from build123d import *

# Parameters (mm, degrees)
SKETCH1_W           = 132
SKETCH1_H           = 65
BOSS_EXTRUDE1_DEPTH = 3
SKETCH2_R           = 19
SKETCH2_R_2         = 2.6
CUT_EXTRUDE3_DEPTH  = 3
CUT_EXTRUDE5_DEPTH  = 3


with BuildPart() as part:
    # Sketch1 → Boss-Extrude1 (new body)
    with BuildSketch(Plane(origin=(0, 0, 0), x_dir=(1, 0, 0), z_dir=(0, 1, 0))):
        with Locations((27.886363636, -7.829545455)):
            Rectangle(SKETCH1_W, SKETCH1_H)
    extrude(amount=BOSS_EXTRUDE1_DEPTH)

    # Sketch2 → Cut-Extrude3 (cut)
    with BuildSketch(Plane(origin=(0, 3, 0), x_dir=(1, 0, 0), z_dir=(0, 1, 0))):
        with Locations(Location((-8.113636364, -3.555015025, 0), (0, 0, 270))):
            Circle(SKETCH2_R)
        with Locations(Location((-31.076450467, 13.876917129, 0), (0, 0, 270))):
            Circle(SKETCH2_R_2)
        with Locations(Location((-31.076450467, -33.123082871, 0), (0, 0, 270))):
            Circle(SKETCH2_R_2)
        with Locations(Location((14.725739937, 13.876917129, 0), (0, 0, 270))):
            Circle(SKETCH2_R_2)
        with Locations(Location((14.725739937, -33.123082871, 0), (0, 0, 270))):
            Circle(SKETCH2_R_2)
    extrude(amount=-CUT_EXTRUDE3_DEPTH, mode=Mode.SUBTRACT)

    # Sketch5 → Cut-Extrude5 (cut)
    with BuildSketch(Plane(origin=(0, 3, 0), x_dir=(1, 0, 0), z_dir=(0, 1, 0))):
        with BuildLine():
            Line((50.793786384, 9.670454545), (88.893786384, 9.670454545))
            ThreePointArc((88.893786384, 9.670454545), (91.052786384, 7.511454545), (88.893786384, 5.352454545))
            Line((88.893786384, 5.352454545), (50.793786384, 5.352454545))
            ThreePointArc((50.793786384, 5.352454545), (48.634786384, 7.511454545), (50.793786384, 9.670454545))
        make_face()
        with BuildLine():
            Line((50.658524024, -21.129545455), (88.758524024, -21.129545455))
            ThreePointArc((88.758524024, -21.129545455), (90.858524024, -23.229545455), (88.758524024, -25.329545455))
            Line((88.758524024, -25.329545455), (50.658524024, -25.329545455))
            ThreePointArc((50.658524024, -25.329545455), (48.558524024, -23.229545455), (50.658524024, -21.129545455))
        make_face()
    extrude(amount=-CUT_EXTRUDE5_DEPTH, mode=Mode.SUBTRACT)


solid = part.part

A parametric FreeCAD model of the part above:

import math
import FreeCAD as App
import Part
import Sketcher

V = App.Vector


def add_polygon(sketch, points):
    """Adds a closed chain of lines whose ends are joined by coincident constraints."""
    first, n = sketch.GeometryCount, len(points)
    for a, b in zip(points, points[1:] + points[:1]):
        sketch.addGeometry(Part.LineSegment(App.Vector(*a, 0), App.Vector(*b, 0)), False)
    for i in range(n):
        sketch.addConstraint(Sketcher.Constraint("Coincident", first + i, 2, first + (i + 1) % n, 1))

doc = App.newDocument("Part")
params = doc.addObject("Spreadsheet::Sheet", "Params")
for row, (alias, value) in enumerate([
    ("sketch1_width", "132 mm"),
    ("sketch1_height", "65 mm"),
    ("pad1_length", "3 mm"),
    ("sketch2_diameter", "38 mm"),
    ("sketch2_diameter2", "5.2 mm"),
    ("pocket1_length", "3 mm"),
    ("sketch3_radius", "2.1 mm"),
    ("sketch3_width", "38.1 mm"),
    ("pocket2_length", "3 mm"),
], start=1):
    params.set(f"A{row}", alias)
    params.set(f"B{row}", "=" + value)
    params.setAlias(f"B{row}", alias)

body = doc.addObject("PartDesign::Body", "Body")

sketch1 = doc.addObject("Sketcher::SketchObject", "Sketch")
body.addObject(sketch1)
sketch1.AttachmentSupport = (doc.XZ_Plane, [""])
sketch1.MapMode = "FlatFace"
add_polygon(sketch1, [(-38, -25), (-38, 40), (94, 40), (94, -25)])
sketch1.addConstraint(Sketcher.Constraint("Vertical", 0))
sketch1.addConstraint(Sketcher.Constraint("Horizontal", 1))
sketch1.addConstraint(Sketcher.Constraint("Vertical", 2))
sketch1.addConstraint(Sketcher.Constraint("Horizontal", 3))
sketch1.addConstraint(Sketcher.Constraint("DistanceX", 1, 1, 1, 2, 132.0))
sketch1.addConstraint(Sketcher.Constraint("DistanceY", 0, 1, 0, 2, 65.0))
sketch1.addConstraint(Sketcher.Constraint("DistanceX", 0, 2, -1, 1, 38.113636))
sketch1.addConstraint(Sketcher.Constraint("DistanceY", -1, 1, 0, 2, 40.329545))
sketch1.setExpression("Constraints[8]", "Params.sketch1_width")
sketch1.setExpression("Constraints[9]", "Params.sketch1_height")
pad1 = doc.addObject("PartDesign::Pad", "Pad")
body.addObject(pad1)
pad1.Profile = sketch1
pad1.setExpression("Length", "Params.pad1_length")
pad1.Reversed = True

sketch2 = doc.addObject("Sketcher::SketchObject", "Sketch001")
body.addObject(sketch2)
sketch2.AttachmentSupport = (doc.XZ_Plane, [""])
sketch2.MapMode = "FlatFace"
sketch2.AttachmentOffset = App.Placement(V(0, 0, -3), App.Rotation())
sketch2.addGeometry(Part.Circle(V(-8.1, 3.6, 0), V(0, 0, 1), 19), False)
sketch2.addGeometry(Part.Circle(V(-31.1, -13.9, 0), V(0, 0, 1), 2.6), False)
sketch2.addGeometry(Part.Circle(V(-31.1, 33.1, 0), V(0, 0, 1), 2.6), False)
sketch2.addGeometry(Part.Circle(V(14.7, -13.9, 0), V(0, 0, 1), 2.6), False)
sketch2.addGeometry(Part.Circle(V(14.7, 33.1, 0), V(0, 0, 1), 2.6), False)
sketch2.addConstraint(Sketcher.Constraint("Equal", 1, 2))
sketch2.addConstraint(Sketcher.Constraint("Equal", 2, 3))
sketch2.addConstraint(Sketcher.Constraint("Equal", 3, 4))
sketch2.addConstraint(Sketcher.Constraint("Horizontal", 1, 3, 3, 3))
sketch2.addConstraint(Sketcher.Constraint("Horizontal", 2, 3, 4, 3))
sketch2.addConstraint(Sketcher.Constraint("Vertical", 1, 3, 2, 3))
sketch2.addConstraint(Sketcher.Constraint("Vertical", 3, 3, 4, 3))
sketch2.addConstraint(Sketcher.Constraint("Diameter", 0, 38.0))
sketch2.addConstraint(Sketcher.Constraint("Diameter", 1, 5.2))
sketch2.addConstraint(Sketcher.Constraint("DistanceY", 1, 3, 2, 3, 47.0))
sketch2.addConstraint(Sketcher.Constraint("DistanceX", 1, 3, -1, 1, 31.07645))
sketch2.addConstraint(Sketcher.Constraint("DistanceX", -1, 1, 3, 3, 14.72574))
sketch2.addConstraint(Sketcher.Constraint("DistanceX", 0, 3, -1, 1, 8.113636))
sketch2.addConstraint(Sketcher.Constraint("DistanceY", -1, 1, 0, 3, 3.555015))
sketch2.addConstraint(Sketcher.Constraint("DistanceY", 1, 3, -1, 1, 13.876917))
sketch2.setExpression("Constraints[7]", "Params.sketch2_diameter")
sketch2.setExpression("Constraints[8]", "Params.sketch2_diameter2")
pocket1 = doc.addObject("PartDesign::Pocket", "Pocket")
body.addObject(pocket1)
pocket1.Profile = sketch2
pocket1.setExpression("Length", "Params.pocket1_length")
pocket1.Reversed = True

sketch3 = doc.addObject("Sketcher::SketchObject", "Sketch002")
body.addObject(sketch3)
sketch3.AttachmentSupport = (doc.XZ_Plane, [""])
sketch3.MapMode = "FlatFace"
sketch3.AttachmentOffset = App.Placement(V(0, 0, -3), App.Rotation())
sketch3.addGeometry(Part.LineSegment(V(88.9, -9.7, 0), V(50.8, -9.7, 0)), False)
sketch3.addGeometry(Part.ArcOfCircle(Part.Circle(V(50.8, -7.5, 0), V(0, 0, 1), 2.2), math.radians(90), math.radians(270)), False)
sketch3.addGeometry(Part.LineSegment(V(50.8, -5.4, 0), V(88.9, -5.4, 0)), False)
sketch3.addGeometry(Part.ArcOfCircle(Part.Circle(V(88.9, -7.5, 0), V(0, 0, 1), 2.2), math.radians(-90), math.radians(90)), False)
sketch3.addGeometry(Part.LineSegment(V(88.8, 21.1, 0), V(50.7, 21.1, 0)), False)
sketch3.addGeometry(Part.ArcOfCircle(Part.Circle(V(50.7, 23.2, 0), V(0, 0, 1), 2.1), math.radians(90), math.radians(270)), False)
sketch3.addGeometry(Part.LineSegment(V(50.7, 25.3, 0), V(88.8, 25.3, 0)), False)
sketch3.addGeometry(Part.ArcOfCircle(Part.Circle(V(88.8, 23.2, 0), V(0, 0, 1), 2.1), math.radians(-90), math.radians(90)), False)
sketch3.addConstraint(Sketcher.Constraint("Tangent", 0, 2, 1, 2))
sketch3.addConstraint(Sketcher.Constraint("Tangent", 1, 1, 2, 1))
sketch3.addConstraint(Sketcher.Constraint("Tangent", 2, 2, 3, 2))
sketch3.addConstraint(Sketcher.Constraint("Tangent", 3, 1, 0, 1))
sketch3.addConstraint(Sketcher.Constraint("Tangent", 4, 2, 5, 2))
sketch3.addConstraint(Sketcher.Constraint("Tangent", 5, 1, 6, 1))
sketch3.addConstraint(Sketcher.Constraint("Tangent", 6, 2, 7, 2))
sketch3.addConstraint(Sketcher.Constraint("Tangent", 7, 1, 4, 1))
sketch3.addConstraint(Sketcher.Constraint("Horizontal", 0))
sketch3.addConstraint(Sketcher.Constraint("Horizontal", 2))
sketch3.addConstraint(Sketcher.Constraint("Horizontal", 4))
sketch3.addConstraint(Sketcher.Constraint("Horizontal", 6))
sketch3.addConstraint(Sketcher.Constraint("Equal", 2, 4))
sketch3.addConstraint(Sketcher.Constraint("Radius", 5, 2.1))
sketch3.addConstraint(Sketcher.Constraint("DistanceX", 0, 2, 0, 1, 38.1))
sketch3.addConstraint(Sketcher.Constraint("Radius", 1, 2.159))
sketch3.addConstraint(Sketcher.Constraint("DistanceY", 0, 2, 5, 1, 35.0))
sketch3.addConstraint(Sketcher.Constraint("DistanceX", -1, 1, 1, 3, 50.793786))
sketch3.addConstraint(Sketcher.Constraint("DistanceY", 1, 3, -1, 1, 7.511455))
sketch3.addConstraint(Sketcher.Constraint("DistanceX", -1, 1, 5, 3, 50.658524))
sketch3.setExpression("Constraints[13]", "Params.sketch3_radius")
sketch3.setExpression("Constraints[14]", "Params.sketch3_width")
pocket2 = doc.addObject("PartDesign::Pocket", "Pocket001")
body.addObject(pocket2)
pocket2.Profile = sketch3
pocket2.setExpression("Length", "Params.pocket2_length")
pocket2.Reversed = True

doc.recompute()
